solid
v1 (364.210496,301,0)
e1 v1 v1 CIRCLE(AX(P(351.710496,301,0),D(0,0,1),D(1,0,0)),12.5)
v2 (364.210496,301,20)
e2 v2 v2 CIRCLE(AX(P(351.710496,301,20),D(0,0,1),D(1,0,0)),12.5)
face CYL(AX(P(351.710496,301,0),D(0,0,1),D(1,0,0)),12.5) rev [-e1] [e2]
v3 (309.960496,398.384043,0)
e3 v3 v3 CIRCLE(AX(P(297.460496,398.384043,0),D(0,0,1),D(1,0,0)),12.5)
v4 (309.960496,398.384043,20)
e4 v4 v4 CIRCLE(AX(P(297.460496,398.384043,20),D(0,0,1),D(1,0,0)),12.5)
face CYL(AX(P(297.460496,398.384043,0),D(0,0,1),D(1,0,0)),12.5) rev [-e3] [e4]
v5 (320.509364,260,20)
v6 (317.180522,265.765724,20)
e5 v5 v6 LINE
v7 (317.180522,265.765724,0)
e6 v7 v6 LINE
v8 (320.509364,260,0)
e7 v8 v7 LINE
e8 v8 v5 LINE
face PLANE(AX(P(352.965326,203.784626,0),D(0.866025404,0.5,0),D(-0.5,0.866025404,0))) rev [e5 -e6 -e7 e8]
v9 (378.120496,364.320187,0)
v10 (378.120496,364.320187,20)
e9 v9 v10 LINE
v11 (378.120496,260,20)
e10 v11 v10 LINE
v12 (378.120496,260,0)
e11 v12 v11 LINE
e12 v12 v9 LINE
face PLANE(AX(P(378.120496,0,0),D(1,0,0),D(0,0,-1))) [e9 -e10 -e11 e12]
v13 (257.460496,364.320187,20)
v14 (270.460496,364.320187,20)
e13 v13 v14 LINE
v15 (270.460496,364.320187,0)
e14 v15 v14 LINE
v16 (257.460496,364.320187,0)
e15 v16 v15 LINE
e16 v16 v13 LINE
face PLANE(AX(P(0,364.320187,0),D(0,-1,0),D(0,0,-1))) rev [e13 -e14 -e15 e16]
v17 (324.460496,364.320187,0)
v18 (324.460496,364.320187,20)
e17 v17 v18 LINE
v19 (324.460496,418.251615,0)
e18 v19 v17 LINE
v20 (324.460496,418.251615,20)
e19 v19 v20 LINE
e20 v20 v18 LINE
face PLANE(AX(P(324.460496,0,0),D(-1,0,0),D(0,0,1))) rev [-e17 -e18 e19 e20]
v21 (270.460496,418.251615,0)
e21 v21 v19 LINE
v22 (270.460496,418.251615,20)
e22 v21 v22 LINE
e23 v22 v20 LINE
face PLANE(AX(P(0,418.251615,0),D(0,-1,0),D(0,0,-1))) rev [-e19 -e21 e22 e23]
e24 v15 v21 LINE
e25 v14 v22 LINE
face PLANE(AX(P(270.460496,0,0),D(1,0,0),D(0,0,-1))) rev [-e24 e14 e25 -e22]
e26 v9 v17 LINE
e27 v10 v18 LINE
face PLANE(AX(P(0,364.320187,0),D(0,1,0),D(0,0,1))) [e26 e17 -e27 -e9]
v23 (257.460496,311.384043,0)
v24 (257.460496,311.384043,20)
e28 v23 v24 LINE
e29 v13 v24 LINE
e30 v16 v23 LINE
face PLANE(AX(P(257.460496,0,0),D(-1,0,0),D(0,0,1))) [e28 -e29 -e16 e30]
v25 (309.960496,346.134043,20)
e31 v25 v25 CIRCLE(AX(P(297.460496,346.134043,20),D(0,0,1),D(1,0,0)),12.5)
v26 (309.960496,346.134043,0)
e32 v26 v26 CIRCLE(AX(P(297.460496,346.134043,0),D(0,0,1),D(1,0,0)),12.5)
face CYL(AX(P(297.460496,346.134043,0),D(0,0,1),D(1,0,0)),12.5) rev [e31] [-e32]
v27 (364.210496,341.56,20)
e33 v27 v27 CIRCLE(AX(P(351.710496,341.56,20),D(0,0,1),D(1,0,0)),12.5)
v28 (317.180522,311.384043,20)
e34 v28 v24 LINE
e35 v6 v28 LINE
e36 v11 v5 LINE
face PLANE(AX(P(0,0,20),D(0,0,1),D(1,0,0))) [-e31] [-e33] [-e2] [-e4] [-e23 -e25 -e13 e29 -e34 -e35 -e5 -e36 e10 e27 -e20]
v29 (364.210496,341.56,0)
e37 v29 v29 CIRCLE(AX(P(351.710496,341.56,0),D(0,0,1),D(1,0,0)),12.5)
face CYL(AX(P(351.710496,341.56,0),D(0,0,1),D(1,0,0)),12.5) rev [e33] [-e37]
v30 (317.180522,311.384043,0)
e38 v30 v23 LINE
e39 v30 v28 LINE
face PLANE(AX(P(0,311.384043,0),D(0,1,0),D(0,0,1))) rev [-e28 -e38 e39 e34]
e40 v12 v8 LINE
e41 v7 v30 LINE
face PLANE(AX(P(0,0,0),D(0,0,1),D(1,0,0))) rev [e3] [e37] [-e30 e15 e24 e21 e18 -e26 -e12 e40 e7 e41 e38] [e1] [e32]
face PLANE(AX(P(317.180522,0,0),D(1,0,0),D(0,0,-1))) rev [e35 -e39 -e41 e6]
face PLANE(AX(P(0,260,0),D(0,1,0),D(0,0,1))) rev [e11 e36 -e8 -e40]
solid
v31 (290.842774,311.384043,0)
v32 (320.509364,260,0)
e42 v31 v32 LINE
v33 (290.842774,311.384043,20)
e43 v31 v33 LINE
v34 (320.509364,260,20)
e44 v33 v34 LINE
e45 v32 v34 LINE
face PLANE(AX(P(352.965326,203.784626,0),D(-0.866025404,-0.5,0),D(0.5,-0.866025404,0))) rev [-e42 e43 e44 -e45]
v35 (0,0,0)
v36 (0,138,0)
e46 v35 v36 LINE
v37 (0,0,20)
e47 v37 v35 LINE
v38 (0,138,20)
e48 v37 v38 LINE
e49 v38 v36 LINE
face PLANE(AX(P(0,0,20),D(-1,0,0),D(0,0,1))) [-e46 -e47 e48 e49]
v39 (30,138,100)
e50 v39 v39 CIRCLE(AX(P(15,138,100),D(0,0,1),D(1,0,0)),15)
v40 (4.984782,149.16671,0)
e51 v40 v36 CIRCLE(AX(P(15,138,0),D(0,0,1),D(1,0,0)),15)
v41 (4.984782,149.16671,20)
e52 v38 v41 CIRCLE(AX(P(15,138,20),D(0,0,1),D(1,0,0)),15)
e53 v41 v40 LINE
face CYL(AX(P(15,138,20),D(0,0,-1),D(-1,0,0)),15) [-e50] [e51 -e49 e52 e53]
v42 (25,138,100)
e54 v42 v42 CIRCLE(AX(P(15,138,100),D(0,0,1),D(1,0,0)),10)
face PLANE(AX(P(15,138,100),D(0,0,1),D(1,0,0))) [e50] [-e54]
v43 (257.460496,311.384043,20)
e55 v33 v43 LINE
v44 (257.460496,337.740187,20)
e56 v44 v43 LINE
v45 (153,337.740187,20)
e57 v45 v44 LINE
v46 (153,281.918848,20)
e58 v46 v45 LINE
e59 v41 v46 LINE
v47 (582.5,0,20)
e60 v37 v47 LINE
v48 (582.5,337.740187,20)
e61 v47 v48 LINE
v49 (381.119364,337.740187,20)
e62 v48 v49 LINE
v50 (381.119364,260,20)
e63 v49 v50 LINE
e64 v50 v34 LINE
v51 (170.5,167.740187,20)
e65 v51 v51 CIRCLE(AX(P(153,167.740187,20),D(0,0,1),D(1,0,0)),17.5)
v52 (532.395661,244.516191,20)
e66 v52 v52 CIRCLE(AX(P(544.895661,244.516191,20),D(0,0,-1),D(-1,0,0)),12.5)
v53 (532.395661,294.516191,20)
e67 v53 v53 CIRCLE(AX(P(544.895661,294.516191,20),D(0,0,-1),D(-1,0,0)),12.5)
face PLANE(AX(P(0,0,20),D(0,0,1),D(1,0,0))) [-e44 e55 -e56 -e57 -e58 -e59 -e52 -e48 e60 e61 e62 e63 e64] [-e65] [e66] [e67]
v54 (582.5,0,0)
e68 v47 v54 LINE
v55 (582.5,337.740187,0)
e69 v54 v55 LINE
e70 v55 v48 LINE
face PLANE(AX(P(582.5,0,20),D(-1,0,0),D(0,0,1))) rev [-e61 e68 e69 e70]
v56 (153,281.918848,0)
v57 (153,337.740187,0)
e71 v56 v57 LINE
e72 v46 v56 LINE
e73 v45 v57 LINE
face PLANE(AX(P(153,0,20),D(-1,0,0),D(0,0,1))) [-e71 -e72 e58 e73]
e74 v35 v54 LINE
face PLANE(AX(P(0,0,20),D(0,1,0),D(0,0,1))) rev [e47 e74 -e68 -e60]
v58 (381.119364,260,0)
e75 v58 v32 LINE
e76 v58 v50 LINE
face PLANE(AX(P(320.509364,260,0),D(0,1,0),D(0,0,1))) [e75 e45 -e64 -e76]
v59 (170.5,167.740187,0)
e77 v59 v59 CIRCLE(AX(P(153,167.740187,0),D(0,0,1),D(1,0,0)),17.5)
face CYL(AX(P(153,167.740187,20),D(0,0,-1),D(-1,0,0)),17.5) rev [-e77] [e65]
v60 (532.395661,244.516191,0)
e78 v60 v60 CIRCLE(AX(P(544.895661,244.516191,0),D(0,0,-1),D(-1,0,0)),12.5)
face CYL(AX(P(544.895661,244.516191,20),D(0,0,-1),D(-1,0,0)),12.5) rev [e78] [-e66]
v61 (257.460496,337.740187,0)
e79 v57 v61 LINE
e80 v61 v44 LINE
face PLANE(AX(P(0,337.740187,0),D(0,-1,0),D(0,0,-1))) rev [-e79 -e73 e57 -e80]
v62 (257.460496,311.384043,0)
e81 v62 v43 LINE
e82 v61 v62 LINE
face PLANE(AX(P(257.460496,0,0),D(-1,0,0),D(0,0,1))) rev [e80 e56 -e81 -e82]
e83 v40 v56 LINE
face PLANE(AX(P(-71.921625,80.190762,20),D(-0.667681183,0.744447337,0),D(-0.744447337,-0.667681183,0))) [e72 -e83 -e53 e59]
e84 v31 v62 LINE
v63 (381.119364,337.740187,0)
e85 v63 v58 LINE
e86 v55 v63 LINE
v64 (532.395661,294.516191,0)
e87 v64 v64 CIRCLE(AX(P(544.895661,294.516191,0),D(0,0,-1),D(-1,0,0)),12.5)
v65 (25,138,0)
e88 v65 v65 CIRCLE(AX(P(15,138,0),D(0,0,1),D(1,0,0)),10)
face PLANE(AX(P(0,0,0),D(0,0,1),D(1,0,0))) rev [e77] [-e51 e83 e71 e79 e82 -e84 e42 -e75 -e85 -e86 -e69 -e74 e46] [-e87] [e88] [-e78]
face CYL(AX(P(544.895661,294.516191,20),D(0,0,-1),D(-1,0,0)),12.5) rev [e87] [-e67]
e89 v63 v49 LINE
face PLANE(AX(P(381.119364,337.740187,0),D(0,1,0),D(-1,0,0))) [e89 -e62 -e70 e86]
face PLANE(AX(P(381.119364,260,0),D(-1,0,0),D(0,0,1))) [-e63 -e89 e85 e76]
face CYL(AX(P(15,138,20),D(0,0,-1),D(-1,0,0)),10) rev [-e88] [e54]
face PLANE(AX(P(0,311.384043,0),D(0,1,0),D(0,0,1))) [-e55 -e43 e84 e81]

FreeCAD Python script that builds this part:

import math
import FreeCAD as App
import Part
import Sketcher
Q = App.Units.Quantity

doc = App.newDocument("Part")
body = doc.addObject("PartDesign::Body", "Body")

# Sketch on XY plane
sketch1 = body.newObject("Sketcher::SketchObject", "Sketch")
sketch1.AttachmentSupport = (doc.getObject("XY_Plane"), [""])
sketch1.MapMode = "FlatFace"
sketch1.addGeometry([
    Part.LineSegment(App.Vector(0, 138, 0), App.Vector(0, 0, 0)),  # 0
    Part.LineSegment(App.Vector(0, 0, 0), App.Vector(582, 0, 0)),  # 1
    Part.LineSegment(App.Vector(582, 0, 0), App.Vector(582, 51, 0)),  # 2
    Part.LineSegment(App.Vector(582, 51, 0), App.Vector(572, 51, 0)),  # 3
    Part.LineSegment(App.Vector(572, 51, 0), App.Vector(375, 86, 0)),  # 4
    Part.LineSegment(App.Vector(375, 86, 0), App.Vector(245, 311, 0)),  # 5
    Part.ArcOfCircle(Part.Circle(App.Vector(153, 168, 0), App.Vector(0, 0, 1), 170), math.radians(57), math.radians(90)),  # 6
    Part.LineSegment(App.Vector(153, 338, 0), App.Vector(153, 282, 0)),  # 7
    Part.LineSegment(App.Vector(153, 282, 0), App.Vector(5, 149, 0)),  # 8
    Part.ArcOfCircle(Part.Circle(App.Vector(15, 138, 0), App.Vector(0, 0, 1), 15), math.radians(132), math.radians(180)),  # 9
    Part.Circle(App.Vector(15, 138, 0), App.Vector(0, 0, 1), 10),  # 10
    Part.Circle(App.Vector(153, 168, 0), App.Vector(0, 0, 1), 18),  # 11
], False)
sketch1.addConstraint([
    Sketcher.Constraint("Coincident", 0, 2, 1, 1),
    Sketcher.Constraint("Coincident", 1, 2, 2, 1),
    Sketcher.Constraint("Coincident", 2, 2, 3, 1),
    Sketcher.Constraint("Coincident", 3, 2, 4, 1),
    Sketcher.Constraint("Coincident", 4, 2, 5, 1),
    Sketcher.Constraint("Coincident", 5, 2, 6, 1),
    Sketcher.Constraint("Coincident", 6, 2, 7, 1),
    Sketcher.Constraint("Coincident", 7, 2, 8, 1),
    Sketcher.Constraint("Tangent", 8, 2, 9, 1),
    Sketcher.Constraint("Tangent", 9, 2, 0, 1),
    Sketcher.Constraint("Vertical", 0),
    Sketcher.Constraint("Horizontal", 1),
    Sketcher.Constraint("Vertical", 2),
    Sketcher.Constraint("Horizontal", 3),
    Sketcher.Constraint("Vertical", 7),
    Sketcher.Constraint("Coincident", 0, 2, -1, 1),
    Sketcher.Constraint("Coincident", 10, 3, 9, 3),
    Sketcher.Constraint("Coincident", 11, 3, 6, 3),
    Sketcher.Constraint("Vertical", 11, 3, 6, 2),
    Sketcher.Constraint("Diameter", 10, 20.0),
    Sketcher.Constraint("Diameter", 11, 35.0),
    Sketcher.Constraint("Radius", 6, 170.0),
    Sketcher.Constraint("Radius", 9, 15.0),
    Sketcher.Constraint("DistanceX", 3, 2, 3, 1, 10.0),
    Sketcher.Constraint("DistanceY", 0, 2, 0, 1, 138.0),
    Sketcher.Constraint("Angle", 4, Q("170 deg")),
    Sketcher.Constraint("Angle", 5, Q("120 deg")),
    Sketcher.Constraint("DistanceX", 1, 1, 1, 2, 582.5),
    Sketcher.Constraint("DistanceX", -1, 1, 6, 3, 153.0),
    Sketcher.Constraint("DistanceX", -1, 1, 5, 2, 244.94),
    Sketcher.Constraint("Distance", 5, 259.418801),
    Sketcher.Constraint("DistanceY", 2, 1, 2, 2, 51.183651),
    Sketcher.Constraint("DistanceY", 7, 2, 7, 1, 55.821339),
])
pad1 = body.newObject("PartDesign::Pad", "Pad")
pad1.Profile = sketch1
pad1.Length = 20

# Sketch on XY plane
sketch2 = body.newObject("Sketcher::SketchObject", "Sketch001")
sketch2.AttachmentSupport = (doc.getObject("XY_Plane"), [""])
sketch2.MapMode = "FlatFace"
sketch2.AttachmentOffset = App.Placement(App.Vector(0, 0, 20), App.Rotation())
sketch2.addGeometry([
    Part.Circle(App.Vector(15, 138, 0), App.Vector(0, 0, 1), 15),
    Part.Circle(App.Vector(15, 138, 0), App.Vector(0, 0, 1), 10),
], False)
sketch2.addConstraint([
    Sketcher.Constraint("Coincident", 1, 3, 0, 3),
    Sketcher.Constraint("Diameter", 0, 30.0),
    Sketcher.Constraint("Diameter", 1, 20.0),
    Sketcher.Constraint("DistanceX", -1, 1, 0, 3, 15.0),
    Sketcher.Constraint("DistanceY", -1, 1, 0, 3, 138.0),
])
pad2 = body.newObject("PartDesign::Pad", "Pad001")
pad2.Profile = sketch2
pad2.Length = 80

# Sketch on XY plane
sketch3 = body.newObject("Sketcher::SketchObject", "Sketch002")
sketch3.AttachmentSupport = (doc.getObject("XY_Plane"), [""])
sketch3.MapMode = "FlatFace"
sketch3.AttachmentOffset = App.Placement(App.Vector(0, 0, 20), App.Rotation())
sketch3.addGeometry([
    Part.LineSegment(App.Vector(257, 338, 0), App.Vector(153, 338, 0)),  # 0
    Part.ArcOfCircle(Part.Circle(App.Vector(153, 168, 0), App.Vector(0, 0, 1), 170), math.radians(57), math.radians(90)),  # 1
    Part.LineSegment(App.Vector(245, 311, 0), App.Vector(375, 86, 0)),  # 2
    Part.LineSegment(App.Vector(375, 86, 0), App.Vector(426, 77, 0)),  # 3
    Part.LineSegment(App.Vector(426, 77, 0), App.Vector(291, 311, 0)),  # 4
    Part.LineSegment(App.Vector(291, 311, 0), App.Vector(257, 311, 0)),  # 5
    Part.LineSegment(App.Vector(257, 311, 0), App.Vector(257, 338, 0)),  # 6
], False)
sketch3.addConstraint([
    Sketcher.Constraint("Tangent", 0, 2, 1, 2),
    Sketcher.Constraint("Coincident", 1, 1, 2, 1),
    Sketcher.Constraint("Coincident", 2, 2, 3, 1),
    Sketcher.Constraint("Coincident", 3, 2, 4, 1),
    Sketcher.Constraint("Coincident", 4, 2, 5, 1),
    Sketcher.Constraint("Coincident", 5, 2, 6, 1),
    Sketcher.Constraint("Coincident", 6, 2, 0, 1),
    Sketcher.Constraint("Horizontal", 0),
    Sketcher.Constraint("Horizontal", 5),
    Sketcher.Constraint("Vertical", 6),
    Sketcher.Constraint("Parallel", 2, 4),
    Sketcher.Constraint("Radius", 1, 170.0),
    Sketcher.Constraint("Angle", 2, Q("-60 deg")),
    Sketcher.Constraint("Angle", 3, Q("-10 deg")),
    Sketcher.Constraint("DistanceX", -1, 1, 1, 3, 153.0),
    Sketcher.Constraint("DistanceX", -1, 1, 1, 1, 244.94),
    Sketcher.Constraint("Distance", 2, 259.418801),
    Sketcher.Constraint("DistanceX", 0, 2, 0, 1, 104.460496),
    Sketcher.Constraint("DistanceX", 5, 2, 5, 1, 33.382278),
    Sketcher.Constraint("DistanceY", 6, 1, 6, 2, 26.356145),
    Sketcher.Constraint("DistanceY", -1, 1, 1, 1, 310.733321),
])
pad3 = body.newObject("PartDesign::Pad", "Pad002")
pad3.Profile = sketch3
pad3.Length = 20
pad3.Reversed = True

# Sketch on XY plane
sketch4 = body.newObject("Sketcher::SketchObject", "Sketch003")
sketch4.AttachmentSupport = (doc.getObject("XY_Plane"), [""])
sketch4.MapMode = "FlatFace"
sketch4.AttachmentOffset = App.Placement(App.Vector(0, 0, 20), App.Rotation())
sketch4.addGeometry([
    Part.LineSegment(App.Vector(582, 51, 0), App.Vector(582, 338, 0)),  # 0
    Part.LineSegment(App.Vector(582, 338, 0), App.Vector(381, 338, 0)),  # 1
    Part.LineSegment(App.Vector(381, 338, 0), App.Vector(381, 260, 0)),  # 2
    Part.LineSegment(App.Vector(381, 260, 0), App.Vector(321, 260, 0)),  # 3
    Part.LineSegment(App.Vector(321, 260, 0), App.Vector(426, 77, 0)),  # 4
    Part.LineSegment(App.Vector(426, 77, 0), App.Vector(522, 60, 0)),  # 5
    Part.LineSegment(App.Vector(522, 60, 0), App.Vector(572, 51, 0)),  # 6
    Part.LineSegment(App.Vector(572, 51, 0), App.Vector(582, 51, 0)),  # 7
], False)
sketch4.addConstraint([
    Sketcher.Constraint("Coincident", 0, 2, 1, 1),
    Sketcher.Constraint("Coincident", 1, 2, 2, 1),
    Sketcher.Constraint("Coincident", 2, 2, 3, 1),
    Sketcher.Constraint("Coincident", 3, 2, 4, 1),
    Sketcher.Constraint("Coincident", 4, 2, 5, 1),
    Sketcher.Constraint("Coincident", 5, 2, 6, 1),
    Sketcher.Constraint("Coincident", 6, 2, 7, 1),
    Sketcher.Constraint("Coincident", 7, 2, 0, 1),
    Sketcher.Constraint("Vertical", 0),
    Sketcher.Constraint("Horizontal", 1),
    Sketcher.Constraint("Vertical", 2),
    Sketcher.Constraint("Horizontal", 3),
    Sketcher.Constraint("Horizontal", 7),
    Sketcher.Constraint("Parallel", 5, 6),
    Sketcher.Constraint("DistanceX", 7, 1, 7, 2, 10.0),
    Sketcher.Constraint("Angle", 4, Q("-60 deg")),
    Sketcher.Constraint("Angle", 5, Q("-10 deg")),
    Sketcher.Constraint("DistanceY", -1, 1, 2, 2, 260.0),
    Sketcher.Constraint("DistanceY", -1, 1, 5, 2, 60.0),
    Sketcher.Constraint("DistanceX", 5, 2, 0, 2, 60.0),
    Sketcher.Constraint("DistanceX", 3, 2, 3, 1, 60.61),
    Sketcher.Constraint("DistanceX", -1, 1, 0, 2, 582.5),
    Sketcher.Constraint("Distance", 5, 97.812891),
    Sketcher.Constraint("DistanceY", 0, 1, 0, 2, 286.556536),
])
pad4 = body.newObject("PartDesign::Pad", "Pad003")
pad4.Profile = sketch4
pad4.Length = 20
pad4.Reversed = True

# Sketch on XY plane
sketch5 = body.newObject("Sketcher::SketchObject", "Sketch004")
sketch5.AttachmentSupport = (doc.getObject("XY_Plane"), [""])
sketch5.MapMode = "FlatFace"
sketch5.addGeometry([
    Part.Circle(App.Vector(545, 295, 0), App.Vector(0, 0, 1), 12),
    Part.Circle(App.Vector(545, 245, 0), App.Vector(0, 0, 1), 12),
], False)
sketch5.addConstraint([
    Sketcher.Constraint("Equal", 0, 1),
    Sketcher.Constraint("Vertical", 0, 3, 1, 3),
    Sketcher.Constraint("Diameter", 0, 25.0),
    Sketcher.Constraint("DistanceY", 1, 3, 0, 3, 50.0),
    Sketcher.Constraint("DistanceX", -1, 1, 0, 3, 544.895661),
    Sketcher.Constraint("DistanceY", -1, 1, 0, 3, 294.516191),
])
pocket1 = body.newObject("PartDesign::Pocket", "Pocket")
pocket1.Profile = sketch5
pocket1.Length = 20
pocket1.Reversed = True
body2 = doc.addObject("PartDesign::Body", "Body001")

# Sketch on XY plane
sketch6 = body2.newObject("Sketcher::SketchObject", "Sketch005")
sketch6.AttachmentSupport = (doc.getObject("XY_Plane001"), [""])
sketch6.MapMode = "FlatFace"
sketch6.AttachmentOffset = App.Placement(App.Vector(0, 0, 20), App.Rotation())
sketch6.addGeometry([
    Part.LineSegment(App.Vector(270, 418, 0), App.Vector(270, 364, 0)),  # 0
    Part.LineSegment(App.Vector(270, 364, 0), App.Vector(257, 364, 0)),  # 1
    Part.LineSegment(App.Vector(257, 364, 0), App.Vector(257, 311, 0)),  # 2
    Part.LineSegment(App.Vector(257, 311, 0), App.Vector(317, 311, 0)),  # 3
    Part.LineSegment(App.Vector(317, 311, 0), App.Vector(317, 266, 0)),  # 4
    Part.LineSegment(App.Vector(317, 266, 0), App.Vector(321, 260, 0)),  # 5
    Part.LineSegment(App.Vector(321, 260, 0), App.Vector(378, 260, 0)),  # 6
    Part.LineSegment(App.Vector(378, 260, 0), App.Vector(378, 364, 0)),  # 7
    Part.LineSegment(App.Vector(378, 364, 0), App.Vector(324, 364, 0)),  # 8
    Part.LineSegment(App.Vector(324, 364, 0), App.Vector(324, 418, 0)),  # 9
    Part.LineSegment(App.Vector(324, 418, 0), App.Vector(270, 418, 0)),  # 10
    Part.Circle(App.Vector(297, 346, 0), App.Vector(0, 0, 1), 12),  # 11
    Part.Circle(App.Vector(352, 301, 0), App.Vector(0, 0, 1), 12),  # 12
    Part.Circle(App.Vector(352, 342, 0), App.Vector(0, 0, 1), 12),  # 13
    Part.Circle(App.Vector(297, 398, 0), App.Vector(0, 0, 1), 12),  # 14
], False)
sketch6.addConstraint([
    Sketcher.Constraint("Coincident", 0, 2, 1, 1),
    Sketcher.Constraint("Coincident", 1, 2, 2, 1),
    Sketcher.Constraint("Coincident", 2, 2, 3, 1),
    Sketcher.Constraint("Coincident", 3, 2, 4, 1),
    Sketcher.Constraint("Coincident", 4, 2, 5, 1),
    Sketcher.Constraint("Coincident", 5, 2, 6, 1),
    Sketcher.Constraint("Coincident", 6, 2, 7, 1),
    Sketcher.Constraint("Coincident", 7, 2, 8, 1),
    Sketcher.Constraint("Coincident", 8, 2, 9, 1),
    Sketcher.Constraint("Coincident", 9, 2, 10, 1),
    Sketcher.Constraint("Coincident", 10, 2, 0, 1),
    Sketcher.Constraint("Vertical", 0),
    Sketcher.Constraint("Horizontal", 1),
    Sketcher.Constraint("Vertical", 2),
    Sketcher.Constraint("Horizontal", 3),
    Sketcher.Constraint("Vertical", 4),
    Sketcher.Constraint("Horizontal", 6),
    Sketcher.Constraint("Vertical", 7),
    Sketcher.Constraint("Horizontal", 8),
    Sketcher.Constraint("Vertical", 9),
    Sketcher.Constraint("Horizontal", 10),
    Sketcher.Constraint("Equal", 11, 12),
    Sketcher.Constraint("Equal", 12, 13),
    Sketcher.Constraint("Equal", 13, 14),
    Sketcher.Constraint("Horizontal", 1, 2, 7, 2),
    Sketcher.Constraint("Vertical", 12, 3, 13, 3),
    Sketcher.Constraint("Vertical", 11, 3, 14, 3),
    Sketcher.Constraint("Diameter", 11, 25.0),
    Sketcher.Constraint("DistanceX", 1, 2, 1, 1, 13.0),
    Sketcher.Constraint("DistanceX", 10, 2, 10, 1, 54.0),
    Sketcher.Constraint("Angle", 5, Q("-60 deg")),
    Sketcher.Constraint("DistanceY", -1, 1, 12, 3, 301.0),
    Sketcher.Constraint("DistanceY", -1, 1, 5, 2, 260.0),
    Sketcher.Constraint("DistanceX", 0, 2, 11, 3, 27.0),
    Sketcher.Constraint("DistanceY", 2, 2, 14, 3, 87.0),
    Sketcher.Constraint("DistanceX", 8, 2, 8, 1, 53.66),
    Sketcher.Constraint("DistanceY", -1, 1, 13, 3, 341.56),
    Sketcher.Constraint("DistanceX", 11, 3, 12, 3, 54.25),
    Sketcher.Constraint("DistanceY", 11, 3, 14, 3, 52.25),
    Sketcher.Constraint("DistanceX", 6, 1, 6, 2, 57.611131),
    Sketcher.Constraint("DistanceY", 0, 2, 0, 1, 53.931428),
    Sketcher.Constraint("DistanceY", 4, 2, 4, 1, 45.618319),
    Sketcher.Constraint("DistanceX", 3, 1, 3, 2, 59.720026),
    Sketcher.Constraint("DistanceY", 2, 2, 2, 1, 52.936145),
    Sketcher.Constraint("DistanceX", -1, 1, 11, 3, 297.460496),
])
pad5 = body2.newObject("PartDesign::Pad", "Pad004")
pad5.Profile = sketch6
pad5.Length = 20
pad5.Reversed = True

doc.recompute()
